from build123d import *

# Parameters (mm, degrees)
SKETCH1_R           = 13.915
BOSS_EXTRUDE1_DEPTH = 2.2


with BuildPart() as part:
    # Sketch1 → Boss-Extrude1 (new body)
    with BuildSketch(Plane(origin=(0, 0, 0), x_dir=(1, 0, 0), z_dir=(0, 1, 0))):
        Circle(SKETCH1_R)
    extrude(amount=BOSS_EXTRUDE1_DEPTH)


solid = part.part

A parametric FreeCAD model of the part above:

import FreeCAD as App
import Part
import Sketcher

V = App.Vector
Q = App.Units.Quantity

doc = App.newDocument("Part")
body = doc.addObject("PartDesign::Body", "Body")

# Sketch on XZ plane
sketch1 = body.newObject("Sketcher::SketchObject", "Sketch")
sketch1.AttachmentSupport = (doc.getObject("XZ_Plane"), [""])
sketch1.MapMode = "FlatFace"
sketch1.addGeometry(Part.Circle(V(0, 0, 0), V(0, 0, 1), 13.915), False)
sketch1.addConstraint([
    Sketcher.Constraint("Coincident", 0, 3, -1, 1),
    Sketcher.Constraint("Diameter", 0, Q("27.83 mm")),
])
pad1 = body.newObject("PartDesign::Pad", "Pad")
pad1.Profile = sketch1
pad1.Length = 2.2
pad1.Reversed = True

doc.recompute()
